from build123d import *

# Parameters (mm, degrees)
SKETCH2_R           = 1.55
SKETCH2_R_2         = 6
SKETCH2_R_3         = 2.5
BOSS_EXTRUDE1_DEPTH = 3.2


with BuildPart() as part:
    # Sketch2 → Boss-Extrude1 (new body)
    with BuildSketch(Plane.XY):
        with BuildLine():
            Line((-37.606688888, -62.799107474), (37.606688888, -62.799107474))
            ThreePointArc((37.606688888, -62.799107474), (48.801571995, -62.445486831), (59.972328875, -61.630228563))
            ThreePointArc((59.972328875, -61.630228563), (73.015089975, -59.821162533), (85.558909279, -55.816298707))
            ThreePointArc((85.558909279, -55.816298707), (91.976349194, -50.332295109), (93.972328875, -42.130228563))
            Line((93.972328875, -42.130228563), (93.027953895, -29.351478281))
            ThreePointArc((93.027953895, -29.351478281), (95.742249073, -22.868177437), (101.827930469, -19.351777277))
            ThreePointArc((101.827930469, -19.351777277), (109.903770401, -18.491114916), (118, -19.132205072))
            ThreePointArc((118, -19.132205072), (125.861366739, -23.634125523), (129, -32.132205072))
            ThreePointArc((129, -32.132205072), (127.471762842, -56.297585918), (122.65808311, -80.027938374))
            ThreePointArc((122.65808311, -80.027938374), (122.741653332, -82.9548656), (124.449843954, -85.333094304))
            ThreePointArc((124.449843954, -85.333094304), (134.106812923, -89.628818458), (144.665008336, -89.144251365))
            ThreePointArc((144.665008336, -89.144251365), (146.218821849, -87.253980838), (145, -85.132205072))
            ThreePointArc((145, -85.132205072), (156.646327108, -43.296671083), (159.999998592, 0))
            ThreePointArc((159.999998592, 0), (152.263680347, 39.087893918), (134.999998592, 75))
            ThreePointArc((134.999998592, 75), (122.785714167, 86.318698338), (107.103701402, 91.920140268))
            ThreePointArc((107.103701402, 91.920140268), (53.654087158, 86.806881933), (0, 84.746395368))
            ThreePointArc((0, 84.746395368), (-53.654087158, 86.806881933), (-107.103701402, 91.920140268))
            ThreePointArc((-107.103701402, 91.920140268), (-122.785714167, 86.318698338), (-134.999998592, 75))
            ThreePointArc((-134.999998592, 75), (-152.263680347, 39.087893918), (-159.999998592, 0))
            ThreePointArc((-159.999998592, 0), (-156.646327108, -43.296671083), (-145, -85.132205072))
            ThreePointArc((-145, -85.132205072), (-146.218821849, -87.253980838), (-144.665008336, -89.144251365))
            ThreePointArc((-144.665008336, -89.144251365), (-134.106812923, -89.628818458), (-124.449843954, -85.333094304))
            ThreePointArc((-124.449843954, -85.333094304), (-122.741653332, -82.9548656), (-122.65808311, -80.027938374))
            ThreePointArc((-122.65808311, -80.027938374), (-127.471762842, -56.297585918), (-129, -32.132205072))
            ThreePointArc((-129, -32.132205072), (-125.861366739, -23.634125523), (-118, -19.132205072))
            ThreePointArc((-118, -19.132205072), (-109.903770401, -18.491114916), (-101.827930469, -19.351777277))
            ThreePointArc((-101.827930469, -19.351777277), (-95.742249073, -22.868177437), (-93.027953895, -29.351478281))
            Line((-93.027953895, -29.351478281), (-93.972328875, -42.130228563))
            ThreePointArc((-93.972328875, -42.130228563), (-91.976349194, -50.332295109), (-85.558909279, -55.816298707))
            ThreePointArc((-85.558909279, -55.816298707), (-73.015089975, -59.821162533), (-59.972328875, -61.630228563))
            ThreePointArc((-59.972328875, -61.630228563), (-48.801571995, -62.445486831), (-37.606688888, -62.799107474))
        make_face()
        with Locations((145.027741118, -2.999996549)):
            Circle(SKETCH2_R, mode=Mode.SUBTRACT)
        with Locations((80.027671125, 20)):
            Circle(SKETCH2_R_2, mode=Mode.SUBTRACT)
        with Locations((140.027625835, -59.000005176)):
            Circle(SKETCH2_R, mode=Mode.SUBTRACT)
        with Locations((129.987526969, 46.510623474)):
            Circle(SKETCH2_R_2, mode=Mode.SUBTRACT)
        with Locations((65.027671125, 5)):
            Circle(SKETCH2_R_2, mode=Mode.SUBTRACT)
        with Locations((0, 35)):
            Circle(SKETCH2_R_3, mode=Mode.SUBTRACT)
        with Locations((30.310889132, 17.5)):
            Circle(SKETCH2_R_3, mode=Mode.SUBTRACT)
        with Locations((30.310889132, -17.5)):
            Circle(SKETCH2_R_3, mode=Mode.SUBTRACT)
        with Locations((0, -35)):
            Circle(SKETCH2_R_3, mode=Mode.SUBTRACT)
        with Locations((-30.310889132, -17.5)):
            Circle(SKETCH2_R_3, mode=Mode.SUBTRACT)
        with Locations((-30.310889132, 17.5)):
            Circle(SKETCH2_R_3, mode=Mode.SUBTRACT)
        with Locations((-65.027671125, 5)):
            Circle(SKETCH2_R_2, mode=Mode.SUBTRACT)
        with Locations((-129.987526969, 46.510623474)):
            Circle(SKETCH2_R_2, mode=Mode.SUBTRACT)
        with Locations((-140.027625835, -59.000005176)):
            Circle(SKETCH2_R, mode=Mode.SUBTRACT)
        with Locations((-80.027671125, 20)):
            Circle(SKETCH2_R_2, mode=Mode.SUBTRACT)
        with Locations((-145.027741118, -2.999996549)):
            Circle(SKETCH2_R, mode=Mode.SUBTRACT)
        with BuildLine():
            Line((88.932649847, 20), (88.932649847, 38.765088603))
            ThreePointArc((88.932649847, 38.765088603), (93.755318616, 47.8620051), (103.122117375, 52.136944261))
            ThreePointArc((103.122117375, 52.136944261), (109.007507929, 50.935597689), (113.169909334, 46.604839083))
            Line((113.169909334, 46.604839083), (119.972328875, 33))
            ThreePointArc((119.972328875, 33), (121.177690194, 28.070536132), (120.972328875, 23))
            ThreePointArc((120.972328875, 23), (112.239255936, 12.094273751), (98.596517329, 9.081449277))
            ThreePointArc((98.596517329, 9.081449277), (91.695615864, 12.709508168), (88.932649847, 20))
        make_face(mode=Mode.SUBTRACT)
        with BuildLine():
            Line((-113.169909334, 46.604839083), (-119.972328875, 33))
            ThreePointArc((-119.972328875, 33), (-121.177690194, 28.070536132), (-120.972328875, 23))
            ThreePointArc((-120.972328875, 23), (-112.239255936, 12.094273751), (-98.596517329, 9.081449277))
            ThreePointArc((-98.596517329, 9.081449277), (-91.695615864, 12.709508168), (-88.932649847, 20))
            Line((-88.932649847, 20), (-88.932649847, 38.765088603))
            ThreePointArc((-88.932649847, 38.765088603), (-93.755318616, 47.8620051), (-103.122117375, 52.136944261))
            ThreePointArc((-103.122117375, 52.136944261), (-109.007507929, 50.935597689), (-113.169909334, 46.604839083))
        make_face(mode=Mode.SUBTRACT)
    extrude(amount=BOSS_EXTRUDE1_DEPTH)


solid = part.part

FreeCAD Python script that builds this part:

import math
import FreeCAD as App
import Part
import Sketcher
from FreeCAD import Vector
Q = App.Units.Quantity

doc = App.newDocument("Part")
body = doc.addObject("PartDesign::Body", "Body")

sketch1 = body.newObject("Sketcher::SketchObject", "Sketch")
sketch1.AttachmentSupport = (doc.getObject("XY_Plane"), [""])
sketch1.MapMode = "FlatFace"
sketch1.addGeometry([
    Part.LineSegment(Vector(-37.6, -62.8, 0), Vector(37.6, -62.8, 0)),
    Part.ArcOfCircle(Part.Circle(Vector(34.6, 208.6, 0), Vector(0, 0, 1), 271.4), math.radians(-89.37), math.radians(-84.64)),
    Part.ArcOfCircle(Part.Circle(Vector(56, 15.3, 0), Vector(0, 0, 1), 77), math.radians(-87.01), math.radians(-67.39)),
    Part.ArcOfCircle(Part.Circle(Vector(80.3, -43.1, 0), Vector(0, 0, 1), 13.7), math.radians(-67), math.radians(4)),
    Part.LineSegment(Vector(94, -42.1, 0), Vector(93, -29.4, 0)),
    Part.ArcOfCircle(Part.Circle(Vector(104, -30.1, 0), Vector(0, 0, 1), 11), math.radians(101), math.radians(176)),
    Part.ArcOfCircle(Part.Circle(Vector(110.5, -62.4, 0), Vector(0, 0, 1), 43.9), math.radians(80), math.radians(101)),
    Part.ArcOfCircle(Part.Circle(Vector(115.7, -32.2, 0), Vector(0, 0, 1), 13.3), math.radians(0), math.radians(80)),
    Part.ArcOfCircle(Part.Circle(Vector(-47.9, -33.1, 0), Vector(0, 0, 1), 176.9), math.radians(-15.39), math.radians(0.31)),
    Part.ArcOfCircle(Part.Circle(Vector(127.5, -81.4, 0), Vector(0, 0, 1), 5), math.radians(165), math.radians(233)),
    Part.ArcOfCircle(Part.Circle(Vector(138.4, -67.1, 0), Vector(0, 0, 1), 23), math.radians(-127), math.radians(-74)),
    Part.ArcOfCircle(Part.Circle(Vector(144.1, -87.1, 0), Vector(0, 0, 1), 2.2), math.radians(-74), math.radians(65)),
    Part.ArcOfCircle(Part.Circle(Vector(-63.9, -4.4, 0), Vector(0, 0, 1), 224), math.radians(-21), math.radians(1)),
    Part.ArcOfCircle(Part.Circle(Vector(2.3, -10.9, 0), Vector(0, 0, 1), 158.1), math.radians(4), math.radians(33)),
    Part.ArcOfCircle(Part.Circle(Vector(101.3, 50.9, 0), Vector(0, 0, 1), 41.5), math.radians(36), math.radians(82)),
    Part.ArcOfCircle(Part.Circle(Vector(-9.3, 1027, 0), Vector(0, 0, 1), 942.3), math.radians(-89.43), math.radians(-82.9)),
    Part.ArcOfCircle(Part.Circle(Vector(9.3, 1027, 0), Vector(0, 0, 1), 942.3), math.radians(-97.1), math.radians(-90.57)),
    Part.ArcOfCircle(Part.Circle(Vector(-101.3, 50.9, 0), Vector(0, 0, 1), 41.5), math.radians(98), math.radians(144)),
    Part.ArcOfCircle(Part.Circle(Vector(-2.3, -10.9, 0), Vector(0, 0, 1), 158.1), math.radians(147), math.radians(176)),
    Part.ArcOfCircle(Part.Circle(Vector(63.9, -4.4, 0), Vector(0, 0, 1), 224), math.radians(179), math.radians(201)),
    Part.ArcOfCircle(Part.Circle(Vector(-144.1, -87.1, 0), Vector(0, 0, 1), 2.2), math.radians(115), math.radians(254)),
    Part.ArcOfCircle(Part.Circle(Vector(-138.4, -67.1, 0), Vector(0, 0, 1), 23), math.radians(-106), math.radians(-53)),
    Part.ArcOfCircle(Part.Circle(Vector(-127.5, -81.4, 0), Vector(0, 0, 1), 5), math.radians(-53), math.radians(15)),
    Part.ArcOfCircle(Part.Circle(Vector(47.9, -33.1, 0), Vector(0, 0, 1), 176.9), math.radians(179.69), math.radians(195.39)),
    Part.ArcOfCircle(Part.Circle(Vector(-115.7, -32.2, 0), Vector(0, 0, 1), 13.3), math.radians(100), math.radians(180)),
    Part.ArcOfCircle(Part.Circle(Vector(-110.5, -62.4, 0), Vector(0, 0, 1), 43.9), math.radians(79), math.radians(100)),
    Part.ArcOfCircle(Part.Circle(Vector(-104, -30.1, 0), Vector(0, 0, 1), 11), math.radians(4), math.radians(79)),
    Part.LineSegment(Vector(-93, -29.4, 0), Vector(-94, -42.1, 0)),
    Part.ArcOfCircle(Part.Circle(Vector(-80.3, -43.1, 0), Vector(0, 0, 1), 13.7), math.radians(176), math.radians(247)),
    Part.ArcOfCircle(Part.Circle(Vector(-56, 15.3, 0), Vector(0, 0, 1), 77), math.radians(-112.61), math.radians(-92.99)),
    Part.ArcOfCircle(Part.Circle(Vector(-34.6, 208.6, 0), Vector(0, 0, 1), 271.4), math.radians(-95.36), math.radians(-90.63)),
    Part.Circle(Vector(-140, -59, 0), Vector(0, 0, 1), 1.6),
    Part.Circle(Vector(-30.3, -17.5, 0), Vector(0, 0, 1), 2.5),
    Part.Circle(Vector(0, -35, 0), Vector(0, 0, 1), 2.5),
    Part.Circle(Vector(140, -59, 0), Vector(0, 0, 1), 1.6),
    Part.Circle(Vector(30.3, -17.5, 0), Vector(0, 0, 1), 2.5),
    Part.Circle(Vector(-145, -3, 0), Vector(0, 0, 1), 1.6),
    Part.Circle(Vector(-80, 20, 0), Vector(0, 0, 1), 6),
    Part.Circle(Vector(-65, 5, 0), Vector(0, 0, 1), 6),
    Part.Circle(Vector(-30.3, 17.5, 0), Vector(0, 0, 1), 2.5),
    Part.LineSegment(Vector(-120, 33, 0), Vector(-113.2, 46.6, 0)),
    Part.ArcOfCircle(Part.Circle(Vector(-104.1, 42.1, 0), Vector(0, 0, 1), 10.1), math.radians(84), math.radians(153)),
    Part.ArcOfCircle(Part.Circle(Vector(-104.7, 36.2, 0), Vector(0, 0, 1), 16), math.radians(9), math.radians(84)),
    Part.LineSegment(Vector(-88.9, 38.8, 0), Vector(-88.9, 20, 0)),
    Part.ArcOfCircle(Part.Circle(Vector(-99.9, 20, 0), Vector(0, 0, 1), 11), math.radians(-83), math.radians(0)),
    Part.ArcOfCircle(Part.Circle(Vector(-101.1, 29.9, 0), Vector(0, 0, 1), 21), math.radians(-161), math.radians(-83)),
    Part.ArcOfCircle(Part.Circle(Vector(-103.1, 26.3, 0), Vector(0, 0, 1), 18.2), math.radians(158), math.radians(190)),
    Part.Circle(Vector(-130, 46.5, 0), Vector(0, 0, 1), 6),
    Part.Circle(Vector(65, 5, 0), Vector(0, 0, 1), 6),
    Part.Circle(Vector(30.3, 17.5, 0), Vector(0, 0, 1), 2.5),
    Part.Circle(Vector(145, -3, 0), Vector(0, 0, 1), 1.6),
    Part.Circle(Vector(80, 20, 0), Vector(0, 0, 1), 6),
    Part.Circle(Vector(0, 35, 0), Vector(0, 0, 1), 2.5),
    Part.ArcOfCircle(Part.Circle(Vector(99.9, 20, 0), Vector(0, 0, 1), 11), math.radians(-180), math.radians(-97)),
    Part.LineSegment(Vector(88.9, 20, 0), Vector(88.9, 38.8, 0)),
    Part.ArcOfCircle(Part.Circle(Vector(104.7, 36.2, 0), Vector(0, 0, 1), 16), math.radians(96), math.radians(171)),
    Part.ArcOfCircle(Part.Circle(Vector(104.1, 42.1, 0), Vector(0, 0, 1), 10.1), math.radians(27), math.radians(96)),
    Part.LineSegment(Vector(113.2, 46.6, 0), Vector(120, 33, 0)),
    Part.ArcOfCircle(Part.Circle(Vector(103.1, 26.3, 0), Vector(0, 0, 1), 18.2), math.radians(-10), math.radians(22)),
    Part.ArcOfCircle(Part.Circle(Vector(101.1, 29.9, 0), Vector(0, 0, 1), 21), math.radians(-97), math.radians(-19)),
    Part.Circle(Vector(130, 46.5, 0), Vector(0, 0, 1), 6),
], False)
sketch1.addConstraint([
    Sketcher.Constraint("Coincident", 0, 2, 1, 1),
    Sketcher.Constraint("Coincident", 1, 2, 2, 1),
    Sketcher.Constraint("Tangent", 2, 2, 3, 1),
    Sketcher.Constraint("Tangent", 3, 2, 4, 1),
    Sketcher.Constraint("Coincident", 4, 2, 5, 2),
    Sketcher.Constraint("Tangent", 5, 1, 6, 2),
    Sketcher.Constraint("Tangent", 6, 1, 7, 2),
    Sketcher.Constraint("Tangent", 7, 1, 8, 2),
    Sketcher.Constraint("Tangent", 8, 1, 9, 1),
    Sketcher.Constraint("Tangent", 9, 2, 10, 1),
    Sketcher.Constraint("Tangent", 10, 2, 11, 1),
    Sketcher.Constraint("Coincident", 11, 2, 12, 1),
    Sketcher.Constraint("Coincident", 12, 2, 13, 1),
    Sketcher.Constraint("Coincident", 13, 2, 14, 1),
    Sketcher.Constraint("Coincident", 14, 2, 15, 2),
    Sketcher.Constraint("Coincident", 15, 1, 16, 2),
    Sketcher.Constraint("Coincident", 16, 1, 17, 1),
    Sketcher.Constraint("Coincident", 17, 2, 18, 1),
    Sketcher.Constraint("Coincident", 18, 2, 19, 1),
    Sketcher.Constraint("Coincident", 19, 2, 20, 1),
    Sketcher.Constraint("Tangent", 20, 2, 21, 1),
    Sketcher.Constraint("Tangent", 21, 2, 22, 1),
    Sketcher.Constraint("Tangent", 22, 2, 23, 2),
    Sketcher.Constraint("Tangent", 23, 1, 24, 2),
    Sketcher.Constraint("Tangent", 24, 1, 25, 2),
    Sketcher.Constraint("Tangent", 25, 1, 26, 2),
    Sketcher.Constraint("Coincident", 26, 1, 27, 1),
    Sketcher.Constraint("Tangent", 27, 2, 28, 1),
    Sketcher.Constraint("Tangent", 28, 2, 29, 1),
    Sketcher.Constraint("Coincident", 29, 2, 30, 1),
    Sketcher.Constraint("Coincident", 30, 2, 0, 1),
    Sketcher.Constraint("Tangent", 40, 2, 41, 2),
    Sketcher.Constraint("Tangent", 41, 1, 42, 2),
    Sketcher.Constraint("Coincident", 42, 1, 43, 1),
    Sketcher.Constraint("Tangent", 43, 2, 44, 2),
    Sketcher.Constraint("Tangent", 44, 1, 45, 2),
    Sketcher.Constraint("Coincident", 45, 1, 46, 2),
    Sketcher.Constraint("Coincident", 46, 1, 40, 1),
    Sketcher.Constraint("Tangent", 53, 1, 54, 1),
    Sketcher.Constraint("Coincident", 54, 2, 55, 2),
    Sketcher.Constraint("Tangent", 55, 1, 56, 2),
    Sketcher.Constraint("Tangent", 56, 1, 57, 1),
    Sketcher.Constraint("Coincident", 57, 2, 58, 2),
    Sketcher.Constraint("Coincident", 58, 1, 59, 2),
    Sketcher.Constraint("Tangent", 59, 1, 53, 2),
    Sketcher.Constraint("Horizontal", 0),
    Sketcher.Constraint("Vertical", 43),
    Sketcher.Constraint("Vertical", 54),
    Sketcher.Constraint("Equal", 15, 16),
    Sketcher.Constraint("Equal", 14, 17),
    Sketcher.Constraint("Equal", 13, 18),
    Sketcher.Constraint("Equal", 12, 19),
    Sketcher.Constraint("Equal", 11, 20),
    Sketcher.Constraint("Equal", 10, 21),
    Sketcher.Constraint("Equal", 9, 22),
    Sketcher.Constraint("Equal", 8, 23),
    Sketcher.Constraint("Equal", 7, 24),
    Sketcher.Constraint("Equal", 6, 25),
    Sketcher.Constraint("Equal", 5, 26),
    Sketcher.Constraint("Equal", 3, 28),
    Sketcher.Constraint("Equal", 2, 29),
    Sketcher.Constraint("Equal", 1, 30),
    Sketcher.Constraint("Equal", 32, 33),
    Sketcher.Constraint("Equal", 31, 34),
    Sketcher.Constraint("Equal", 33, 35),
    Sketcher.Constraint("Equal", 34, 36),
    Sketcher.Constraint("Equal", 37, 38),
    Sketcher.Constraint("Equal", 35, 39),
    Sketcher.Constraint("Equal", 26, 44),
    Sketcher.Constraint("Equal", 38, 47),
    Sketcher.Constraint("Equal", 47, 48),
    Sketcher.Constraint("Equal", 39, 49),
    Sketcher.Constraint("Equal", 36, 50),
    Sketcher.Constraint("Equal", 48, 51),
    Sketcher.Constraint("Equal", 49, 52),
    Sketcher.Constraint("Equal", 44, 53),
    Sketcher.Constraint("Equal", 42, 55),
    Sketcher.Constraint("Equal", 41, 56),
    Sketcher.Constraint("Equal", 46, 58),
    Sketcher.Constraint("Equal", 45, 59),
    Sketcher.Constraint("Equal", 51, 60),
    Sketcher.Constraint("Symmetric", 35, 3, 39, 3, -1, 1),
    Sketcher.Constraint("Symmetric", 32, 3, 49, 3, -1, 1),
    Sketcher.Constraint("Symmetric", 33, 3, 52, 3, -1, 1),
    Sketcher.Constraint("Symmetric", 12, 2, 18, 2, -1, 1),
    Sketcher.Constraint("Symmetric", 15, 3, 16, 3, -2),
    Sketcher.Constraint("Symmetric", 14, 3, 17, 3, -2),
    Sketcher.Constraint("Symmetric", 13, 3, 18, 3, -2),
    Sketcher.Constraint("Symmetric", 11, 3, 20, 3, -2),
    Sketcher.Constraint("Symmetric", 9, 3, 22, 3, -2),
    Sketcher.Constraint("Symmetric", 7, 3, 24, 3, -2),
    Sketcher.Constraint("Symmetric", 5, 3, 26, 3, -2),
    Sketcher.Constraint("Symmetric", 3, 3, 28, 3, -2),
    Sketcher.Constraint("Symmetric", 1, 3, 30, 3, -2),
    Sketcher.Constraint("Symmetric", 31, 3, 34, 3, -2),
    Sketcher.Constraint("Symmetric", 32, 3, 35, 3, -2),
    Sketcher.Constraint("Symmetric", 38, 3, 48, 3, -2),
    Sketcher.Constraint("Symmetric", 36, 3, 50, 3, -2),
    Sketcher.Constraint("Symmetric", 37, 3, 51, 3, -2),
    Sketcher.Constraint("Symmetric", 44, 3, 53, 3, -2),
    Sketcher.Constraint("Symmetric", 42, 3, 55, 3, -2),
    Sketcher.Constraint("Symmetric", 46, 3, 58, 3, -2),
    Sketcher.Constraint("Symmetric", 47, 3, 60, 3, -2),
    Sketcher.Constraint("Symmetric", 40, 2, 56, 1, -2),
    Sketcher.Constraint("PointOnObject", 33, 3, -2),
    Sketcher.Constraint("Horizontal", 12, 3, 19, 3),
    Sketcher.Constraint("Horizontal", 2, 3, 29, 3),
    Sketcher.Constraint("Horizontal", 37, 3, 44, 3),
    Sketcher.Constraint("Horizontal", 45, 3, 59, 3),
    Sketcher.Constraint("Horizontal", 4, 2, 26, 1),
    Sketcher.Constraint("Diameter", 32, Q("5 mm")),
    Sketcher.Constraint("Diameter", 37, Q("12 mm")),
    Sketcher.Constraint("Radius", 2, Q("77 mm")),
    Sketcher.Constraint("Radius", 5, Q("11 mm")),
    Sketcher.Constraint("Radius", 9, Q("5 mm")),
    Sketcher.Constraint("Radius", 42, Q("16 mm")),
    Sketcher.Constraint("Radius", 45, Q("21 mm")),
    Sketcher.Constraint("Diameter", 31, Q("3.1 mm")),
    Sketcher.Constraint("Radius", 41, Q("10.1 mm")),
    Sketcher.Constraint("DistanceX", -1, 1, 5, 3, Q("104 mm")),
    Sketcher.Constraint("DistanceY", 33, 3, -1, 1, Q("35 mm")),
    Sketcher.Constraint("DistanceY", -1, 1, 37, 3, Q("20 mm")),
    Sketcher.Constraint("DistanceY", -1, 1, 38, 3, Q("5 mm")),
    Sketcher.Constraint("DistanceX", -1, 1, 6, 1, Q("118 mm")),
    Sketcher.Constraint("DistanceX", -1, 1, 7, 1, Q("129 mm")),
    Sketcher.Constraint("DistanceX", -1, 1, 11, 2, Q("145 mm")),
    Sketcher.Constraint("DistanceX", -1, 1, 12, 2, Q("159.999999 mm")),
    Sketcher.Constraint("DistanceX", -1, 1, 13, 2, Q("134.999999 mm")),
    Sketcher.Constraint("DistanceY", -1, 1, 13, 2, Q("75 mm")),
    Sketcher.Constraint("DistanceY", -1, 1, 45, 1, Q("23 mm")),
    Sketcher.Constraint("DistanceY", -1, 1, 46, 1, Q("33 mm")),
    Sketcher.Constraint("DistanceX", -1, 1, 6, 3, Q("110.5 mm")),
    Sketcher.Constraint("DistanceY", 32, 3, -1, 1, Q("17.5 mm")),
    Sketcher.Constraint("Radius", 1, Q("271.380569 mm")),
    Sketcher.Constraint("Radius", 3, Q("13.729558 mm")),
    Sketcher.Constraint("Radius", 10, Q("22.964378 mm")),
    Sketcher.Constraint("Radius", 12, Q("223.962029 mm")),
    Sketcher.Constraint("Radius", 15, Q("942.278569 mm")),
    Sketcher.Constraint("Radius", 46, Q("18.16424 mm")),
    Sketcher.Constraint("Radius", 6, Q("43.917923 mm")),
    Sketcher.Constraint("Radius", 8, Q("176.910122 mm")),
    Sketcher.Constraint("Radius", 11, Q("2.151995 mm")),
    Sketcher.Constraint("Radius", 13, Q("158.095975 mm")),
    Sketcher.Constraint("Radius", 14, Q("41.470538 mm")),
    Sketcher.Constraint("Distance", 4, Q("12.813598 mm")),
    Sketcher.Constraint("DistanceY", 43, 2, 43, 1, Q("18.765089 mm")),
    Sketcher.Constraint("DistanceX", 15, 3, -1, 1, Q("9.318098 mm")),
    Sketcher.Constraint("DistanceY", 2, 2, -1, 1, Q("55.816299 mm")),
    Sketcher.Constraint("DistanceX", -1, 1, 14, 2, Q("107.103701 mm")),
    Sketcher.Constraint("DistanceX", 0, 1, 0, 2, Q("75.213378 mm")),
    Sketcher.Constraint("DistanceX", -1, 1, 1, 3, Q("34.63794 mm")),
    Sketcher.Constraint("DistanceX", -1, 1, 2, 3, Q("55.953619 mm")),
    Sketcher.Constraint("DistanceY", -1, 1, 2, 3, Q("15.26483 mm")),
    Sketcher.Constraint("DistanceY", 6, 3, -1, 1, Q("62.404991 mm")),
    Sketcher.Constraint("DistanceX", -1, 1, 9, 3, Q("127.478771 mm")),
    Sketcher.Constraint("DistanceX", -1, 1, 10, 3, Q("138.361328 mm")),
    Sketcher.Constraint("DistanceY", 10, 3, -1, 1, Q("67.06199 mm")),
    Sketcher.Constraint("DistanceX", -1, 1, 11, 3, Q("144.07429 mm")),
    Sketcher.Constraint("DistanceY", -1, 1, 15, 3, Q("1026.978891 mm")),
    Sketcher.Constraint("DistanceX", 32, 3, -1, 1, Q("30.310889 mm")),
    Sketcher.Constraint("DistanceX", 36, 3, -1, 1, Q("145.027741 mm")),
    Sketcher.Constraint("DistanceX", 37, 3, -1, 1, Q("80.027671 mm")),
    Sketcher.Constraint("DistanceX", 38, 3, -1, 1, Q("65.027671 mm")),
    Sketcher.Constraint("DistanceY", -1, 1, 41, 3, Q("42.087982 mm")),
    Sketcher.Constraint("DistanceX", 44, 3, -1, 1, Q("99.93265 mm")),
    Sketcher.Constraint("DistanceX", -1, 1, 1, 2, Q("59.972329 mm")),
    Sketcher.Constraint("DistanceX", 40, 2, -1, 1, Q("113.169909 mm")),
    Sketcher.Constraint("DistanceY", -1, 1, 40, 2, Q("46.604839 mm")),
    Sketcher.Constraint("DistanceY", -1, 1, 44, 1, Q("9.081449 mm")),
    Sketcher.Constraint("DistanceX", 31, 3, -1, 1, Q("140.027626 mm")),
    Sketcher.Constraint("DistanceY", 31, 3, -1, 1, Q("59.000005 mm")),
    Sketcher.Constraint("DistanceY", 36, 3, -1, 1, Q("2.999997 mm")),
    Sketcher.Constraint("DistanceX", 47, 3, -1, 1, Q("129.987527 mm")),
    Sketcher.Constraint("DistanceY", -1, 1, 47, 3, Q("46.510623 mm")),
])
pad1 = body.newObject("PartDesign::Pad", "Pad")
pad1.Profile = sketch1
pad1.Length = 3.2

doc.recompute()
